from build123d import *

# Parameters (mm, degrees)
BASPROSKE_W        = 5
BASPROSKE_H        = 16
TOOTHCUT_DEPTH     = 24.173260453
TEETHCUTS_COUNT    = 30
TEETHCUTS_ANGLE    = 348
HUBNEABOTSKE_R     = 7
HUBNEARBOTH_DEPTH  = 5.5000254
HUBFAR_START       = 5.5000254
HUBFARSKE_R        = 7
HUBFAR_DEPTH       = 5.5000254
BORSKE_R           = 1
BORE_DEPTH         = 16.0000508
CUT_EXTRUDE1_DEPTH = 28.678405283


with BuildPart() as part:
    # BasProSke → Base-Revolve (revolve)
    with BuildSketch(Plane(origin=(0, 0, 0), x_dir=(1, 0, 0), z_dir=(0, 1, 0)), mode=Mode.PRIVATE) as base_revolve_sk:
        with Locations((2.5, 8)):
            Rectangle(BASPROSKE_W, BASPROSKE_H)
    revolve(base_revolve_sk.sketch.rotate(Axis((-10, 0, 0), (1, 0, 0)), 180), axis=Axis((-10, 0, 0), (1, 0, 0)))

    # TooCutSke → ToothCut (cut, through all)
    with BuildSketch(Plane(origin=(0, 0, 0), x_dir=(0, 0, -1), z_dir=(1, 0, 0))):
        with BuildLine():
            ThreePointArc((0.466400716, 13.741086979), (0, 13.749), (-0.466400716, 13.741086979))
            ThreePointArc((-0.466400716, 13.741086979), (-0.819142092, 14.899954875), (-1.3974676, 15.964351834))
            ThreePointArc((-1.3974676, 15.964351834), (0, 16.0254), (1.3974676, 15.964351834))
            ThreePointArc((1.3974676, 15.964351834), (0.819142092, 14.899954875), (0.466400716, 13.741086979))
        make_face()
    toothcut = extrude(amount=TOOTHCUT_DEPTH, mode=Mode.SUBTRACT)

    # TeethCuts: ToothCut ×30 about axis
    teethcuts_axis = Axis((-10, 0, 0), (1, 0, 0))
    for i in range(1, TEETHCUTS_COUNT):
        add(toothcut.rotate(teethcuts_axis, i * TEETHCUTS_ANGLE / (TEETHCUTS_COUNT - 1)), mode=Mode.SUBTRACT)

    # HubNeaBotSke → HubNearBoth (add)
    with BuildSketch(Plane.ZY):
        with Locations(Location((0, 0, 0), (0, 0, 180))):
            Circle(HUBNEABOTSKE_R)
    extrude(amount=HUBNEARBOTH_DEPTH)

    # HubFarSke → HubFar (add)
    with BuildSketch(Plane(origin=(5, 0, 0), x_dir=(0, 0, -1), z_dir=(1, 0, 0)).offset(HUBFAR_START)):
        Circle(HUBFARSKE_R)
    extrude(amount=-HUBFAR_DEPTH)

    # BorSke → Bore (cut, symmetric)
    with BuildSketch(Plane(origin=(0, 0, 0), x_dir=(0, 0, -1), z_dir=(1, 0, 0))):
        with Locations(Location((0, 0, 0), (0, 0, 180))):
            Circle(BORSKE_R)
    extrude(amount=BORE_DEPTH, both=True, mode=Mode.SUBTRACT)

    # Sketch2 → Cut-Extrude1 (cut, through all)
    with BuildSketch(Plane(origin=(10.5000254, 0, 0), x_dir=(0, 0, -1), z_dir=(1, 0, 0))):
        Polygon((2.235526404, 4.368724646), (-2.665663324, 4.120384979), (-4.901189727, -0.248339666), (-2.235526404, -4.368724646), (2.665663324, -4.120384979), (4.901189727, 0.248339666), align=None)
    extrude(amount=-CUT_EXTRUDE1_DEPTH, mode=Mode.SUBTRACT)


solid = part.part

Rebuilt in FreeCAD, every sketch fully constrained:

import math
import FreeCAD as App
import Part
import Sketcher
from FreeCAD import Vector

doc = App.newDocument("Part")
body = doc.addObject("PartDesign::Body", "Body")

sketch1 = body.newObject("Sketcher::SketchObject", "Sketch")
sketch1.AttachmentSupport = (doc.getObject("XZ_Plane"), [""])
sketch1.MapMode = "FlatFace"
sketch1.addGeometry([
    Part.LineSegment(Vector(0, -16, 0), Vector(0, 0, 0)),
    Part.LineSegment(Vector(0, 0, 0), Vector(5, 0, 0)),
    Part.LineSegment(Vector(5, 0, 0), Vector(5, -16, 0)),
    Part.LineSegment(Vector(5, -16, 0), Vector(0, -16, 0)),
], False)
sketch1.addConstraint([
    Sketcher.Constraint("Coincident", 0, 2, 1, 1),
    Sketcher.Constraint("Coincident", 1, 2, 2, 1),
    Sketcher.Constraint("Coincident", 2, 2, 3, 1),
    Sketcher.Constraint("Coincident", 3, 2, 0, 1),
    Sketcher.Constraint("Vertical", 0),
    Sketcher.Constraint("Horizontal", 1),
    Sketcher.Constraint("Vertical", 2),
    Sketcher.Constraint("Horizontal", 3),
    Sketcher.Constraint("Coincident", 0, 2, -1, 1),
    Sketcher.Constraint("DistanceX", 1, 1, 1, 2, 5.0),
    Sketcher.Constraint("DistanceY", 0, 1, 0, 2, 16.0),
])
revolution = body.newObject("PartDesign::Revolution", "Revolution")
revolution.Profile = sketch1
revolution.ReferenceAxis = (sketch1, ["H_Axis"])
revolution.Angle = 360

sketch2 = body.newObject("Sketcher::SketchObject", "Sketch001")
sketch2.AttachmentSupport = (doc.getObject("YZ_Plane"), [""])
sketch2.MapMode = "FlatFace"
sketch2.addGeometry([
    Part.ArcOfCircle(Part.Circle(Vector(0, 0, 0), Vector(0, 0, 1), 13.7), math.radians(-1.94), math.radians(1.94)),
    Part.ArcOfCircle(Part.Circle(Vector(12.6, -6.4, 0), Vector(0, 0, 1), 6), math.radians(56), math.radians(79)),
    Part.ArcOfCircle(Part.Circle(Vector(0, 0, 0), Vector(0, 0, 1), 16), math.radians(-5), math.radians(5)),
    Part.ArcOfCircle(Part.Circle(Vector(12.6, 6.4, 0), Vector(0, 0, 1), 6), math.radians(-79), math.radians(-56)),
], False)
sketch2.addConstraint([
    Sketcher.Constraint("Coincident", 0, 1, 1, 2),
    Sketcher.Constraint("Coincident", 1, 1, 2, 1),
    Sketcher.Constraint("Coincident", 2, 2, 3, 2),
    Sketcher.Constraint("Coincident", 3, 1, 0, 2),
    Sketcher.Constraint("Coincident", 0, 3, -1, 1),
    Sketcher.Constraint("Coincident", 2, 3, -1, 1),
    Sketcher.Constraint("Equal", 1, 3),
    Sketcher.Constraint("Symmetric", 1, 3, 3, 3, -1),
    Sketcher.Constraint("Radius", 1, 6.0),
    Sketcher.Constraint("Radius", 0, 13.749),
    Sketcher.Constraint("Radius", 2, 16.0254),
    Sketcher.Constraint("DistanceY", 0, 1, -1, 1, 0.466401),
    Sketcher.Constraint("DistanceX", -1, 1, 1, 1, 15.964352),
])
pocket1 = body.newObject("PartDesign::Pocket", "Pocket")
pocket1.Profile = sketch2
pocket1.Type = "ThroughAll"
pocket1.Reversed = True
doc.recompute()

polarpattern = body.newObject("PartDesign::PolarPattern", "PolarPattern")
polarpattern.Originals = [pocket1]
polarpattern.Axis = (doc.getObject("X_Axis"), [""])
polarpattern.Angle = 360
polarpattern.Occurrences = 30
body.Tip = polarpattern

sketch3 = body.newObject("Sketcher::SketchObject", "Sketch002")
sketch3.AttachmentSupport = (doc.getObject("YZ_Plane"), [""])
sketch3.MapMode = "FlatFace"
sketch3.addGeometry(Part.Circle(Vector(0, 0, 0), Vector(0, 0, 1), 7), False)
sketch3.addConstraint([
    Sketcher.Constraint("Coincident", 0, 3, -1, 1),
    Sketcher.Constraint("Diameter", 0, 14.0),
])
pad1 = body.newObject("PartDesign::Pad", "Pad")
pad1.Profile = sketch3
pad1.Length = 5.500025
pad1.Reversed = True

sketch4 = body.newObject("Sketcher::SketchObject", "Sketch003")
sketch4.AttachmentSupport = (doc.getObject("YZ_Plane"), [""])
sketch4.MapMode = "FlatFace"
sketch4.AttachmentOffset = App.Placement(Vector(0, 0, 10.500025), App.Rotation())
sketch4.addGeometry(Part.Circle(Vector(0, 0, 0), Vector(0, 0, 1), 7), False)
sketch4.addConstraint([
    Sketcher.Constraint("Coincident", 0, 3, -1, 1),
    Sketcher.Constraint("Diameter", 0, 14.0),
])
pad2 = body.newObject("PartDesign::Pad", "Pad001")
pad2.Profile = sketch4
pad2.Length = 5.500025
pad2.Reversed = True

sketch5 = body.newObject("Sketcher::SketchObject", "Sketch004")
sketch5.AttachmentSupport = (doc.getObject("YZ_Plane"), [""])
sketch5.MapMode = "FlatFace"
sketch5.addGeometry(Part.Circle(Vector(0, 0, 0), Vector(0, 0, 1), 1), False)
sketch5.addConstraint([
    Sketcher.Constraint("Coincident", 0, 3, -1, 1),
    Sketcher.Constraint("Diameter", 0, 2.0),
])
pocket2 = body.newObject("PartDesign::Pocket", "Pocket001")
pocket2.Profile = sketch5
pocket2.Length = 32.000102
pocket2.Midplane = True

sketch6 = body.newObject("Sketcher::SketchObject", "Sketch005")
sketch6.AttachmentSupport = (doc.getObject("YZ_Plane"), [""])
sketch6.MapMode = "FlatFace"
sketch6.AttachmentOffset = App.Placement(Vector(0, 0, 10.500025), App.Rotation())
sketch6.addGeometry([
    Part.LineSegment(Vector(4.4, -2.2, 0), Vector(4.1, 2.7, 0)),
    Part.LineSegment(Vector(4.1, 2.7, 0), Vector(-0.2, 4.9, 0)),
    Part.LineSegment(Vector(-0.2, 4.9, 0), Vector(-4.4, 2.2, 0)),
    Part.LineSegment(Vector(-4.4, 2.2, 0), Vector(-4.1, -2.7, 0)),
    Part.LineSegment(Vector(-4.1, -2.7, 0), Vector(0.2, -4.9, 0)),
    Part.LineSegment(Vector(0.2, -4.9, 0), Vector(4.4, -2.2, 0)),
], False)
sketch6.addConstraint([
    Sketcher.Constraint("Coincident", 0, 2, 1, 1),
    Sketcher.Constraint("Coincident", 1, 2, 2, 1),
    Sketcher.Constraint("Coincident", 2, 2, 3, 1),
    Sketcher.Constraint("Coincident", 3, 2, 4, 1),
    Sketcher.Constraint("Coincident", 4, 2, 5, 1),
    Sketcher.Constraint("Coincident", 5, 2, 0, 1),
    Sketcher.Constraint("Symmetric", 0, 2, 3, 2, -1, 1),
    Sketcher.Constraint("Symmetric", 1, 2, 4, 2, -1, 1),
    Sketcher.Constraint("Symmetric", 2, 2, 5, 2, -1, 1),
    Sketcher.Constraint("Equal", 0, 1),
    Sketcher.Constraint("Equal", 1, 2),
    Sketcher.Constraint("DistanceX", 1, 2, -1, 1, 0.24834),
    Sketcher.Constraint("DistanceY", -1, 1, 1, 2, 4.90119),
    Sketcher.Constraint("DistanceX", 2, 2, 0, 2, 8.48911),
    Sketcher.Constraint("DistanceX", 2, 2, 3, 2, 0.24834),
])
pocket3 = body.newObject("PartDesign::Pocket", "Pocket002")
pocket3.Profile = sketch6
pocket3.Type = "ThroughAll"

doc.recompute()
